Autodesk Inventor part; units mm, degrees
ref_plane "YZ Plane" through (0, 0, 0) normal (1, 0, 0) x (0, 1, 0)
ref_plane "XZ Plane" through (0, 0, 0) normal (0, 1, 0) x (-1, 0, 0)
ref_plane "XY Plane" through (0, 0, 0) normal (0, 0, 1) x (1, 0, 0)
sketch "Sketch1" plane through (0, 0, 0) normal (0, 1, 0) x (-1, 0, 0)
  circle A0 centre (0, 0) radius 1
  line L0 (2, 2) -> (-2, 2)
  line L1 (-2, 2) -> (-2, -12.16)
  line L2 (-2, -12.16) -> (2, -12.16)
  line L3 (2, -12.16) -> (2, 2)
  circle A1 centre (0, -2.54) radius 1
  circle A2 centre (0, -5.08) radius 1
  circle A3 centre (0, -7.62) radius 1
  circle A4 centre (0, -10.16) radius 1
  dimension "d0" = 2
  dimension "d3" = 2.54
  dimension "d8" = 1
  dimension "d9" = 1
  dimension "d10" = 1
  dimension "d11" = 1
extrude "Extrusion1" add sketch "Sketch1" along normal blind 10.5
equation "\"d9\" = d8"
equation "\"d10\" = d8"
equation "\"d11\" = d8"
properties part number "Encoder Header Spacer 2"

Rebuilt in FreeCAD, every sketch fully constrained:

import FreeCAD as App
import Part
import Sketcher
from FreeCAD import Vector


def add_polygon(sketch, points):
    """Adds a closed chain of lines whose ends are joined by coincident constraints."""
    first, n = sketch.GeometryCount, len(points)
    for a, b in zip(points, points[1:] + points[:1]):
        sketch.addGeometry(Part.LineSegment(App.Vector(*a, 0), App.Vector(*b, 0)), False)
    for i in range(n):
        sketch.addConstraint(Sketcher.Constraint("Coincident", first + i, 2, first + (i + 1) % n, 1))

doc = App.newDocument("Part")
body = doc.addObject("PartDesign::Body", "Body")

# Sketch on XZ plane
sketch1 = doc.addObject("Sketcher::SketchObject", "Sketch")
body.addObject(sketch1)
sketch1.AttachmentSupport = (doc.XZ_Plane, [""])
sketch1.MapMode = "FlatFace"
add_polygon(sketch1, [(-2, -12.2), (-2, 2), (2, 2), (2, -12.2)])  # lines 0-3
sketch1.addGeometry(Part.Circle(Vector(0, -10.2, 0), Vector(0, 0, 1), 1), False)  # 4
sketch1.addGeometry(Part.Circle(Vector(0, -7.6, 0), Vector(0, 0, 1), 1), False)  # 5
sketch1.addGeometry(Part.Circle(Vector(0, -5.1, 0), Vector(0, 0, 1), 1), False)  # 6
sketch1.addGeometry(Part.Circle(Vector(0, -2.5, 0), Vector(0, 0, 1), 1), False)  # 7
sketch1.addGeometry(Part.Circle(Vector(0, 0, 0), Vector(0, 0, 1), 1), False)  # 8
sketch1.addConstraint([
    Sketcher.Constraint("Vertical", 0),
    Sketcher.Constraint("Horizontal", 1),
    Sketcher.Constraint("Vertical", 2),
    Sketcher.Constraint("Horizontal", 3),
    Sketcher.Constraint("Coincident", 8, 3, -1, 1),
    Sketcher.Constraint("Equal", 4, 5),
    Sketcher.Constraint("Equal", 5, 6),
    Sketcher.Constraint("Equal", 6, 7),
    Sketcher.Constraint("Equal", 7, 8),
    Sketcher.Constraint("PointOnObject", 4, 3, -2),
    Sketcher.Constraint("PointOnObject", 5, 3, -2),
    Sketcher.Constraint("PointOnObject", 6, 3, -2),
    Sketcher.Constraint("PointOnObject", 7, 3, -2),
    Sketcher.Constraint("Diameter", 4, 2.0),
    Sketcher.Constraint("DistanceX", 0, 2, -1, 1, 2.0),
    Sketcher.Constraint("DistanceY", -1, 1, 0, 2, 2.0),
    Sketcher.Constraint("DistanceX", -1, 1, 1, 2, 2.0),
    Sketcher.Constraint("DistanceY", 2, 2, 4, 3, 2.0),
    Sketcher.Constraint("DistanceY", 7, 3, -1, 1, 2.54),
    Sketcher.Constraint("DistanceY", 4, 3, 5, 3, 2.54),
    Sketcher.Constraint("DistanceY", 5, 3, 6, 3, 2.54),
    Sketcher.Constraint("DistanceY", 6, 3, 7, 3, 2.54),
])
pad1 = doc.addObject("PartDesign::Pad", "Pad")
body.addObject(pad1)
pad1.Profile = sketch1
pad1.Length = 10.5
pad1.Reversed = True

doc.recompute()
